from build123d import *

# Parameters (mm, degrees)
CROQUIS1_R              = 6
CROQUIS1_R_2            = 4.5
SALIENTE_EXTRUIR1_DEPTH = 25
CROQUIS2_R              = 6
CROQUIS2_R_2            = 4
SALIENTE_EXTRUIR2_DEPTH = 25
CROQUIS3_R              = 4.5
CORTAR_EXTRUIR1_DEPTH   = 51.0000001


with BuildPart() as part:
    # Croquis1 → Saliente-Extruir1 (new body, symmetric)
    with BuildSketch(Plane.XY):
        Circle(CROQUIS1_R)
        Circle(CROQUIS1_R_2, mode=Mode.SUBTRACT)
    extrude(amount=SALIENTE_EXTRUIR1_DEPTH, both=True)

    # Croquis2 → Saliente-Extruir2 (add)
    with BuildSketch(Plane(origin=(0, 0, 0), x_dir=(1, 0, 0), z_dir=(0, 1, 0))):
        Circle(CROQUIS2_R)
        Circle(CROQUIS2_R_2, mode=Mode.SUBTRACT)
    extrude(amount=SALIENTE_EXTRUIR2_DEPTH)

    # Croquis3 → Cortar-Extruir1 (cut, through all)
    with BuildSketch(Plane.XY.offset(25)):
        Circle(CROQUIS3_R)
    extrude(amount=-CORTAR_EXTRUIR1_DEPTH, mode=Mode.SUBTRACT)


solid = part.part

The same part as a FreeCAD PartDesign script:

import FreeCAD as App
import Part
import Sketcher

V = App.Vector
Q = App.Units.Quantity

doc = App.newDocument("Part")
params = doc.addObject("Spreadsheet::Sheet", "Params")
for row, (alias, value) in enumerate([
    ("sketch1_diameter", "12 mm"),
    ("sketch1_diameter2", "9 mm"),
    ("pad1_length", "50 mm"),
    ("sketch2_diameter", "12 mm"),
    ("sketch2_diameter2", "8 mm"),
    ("pad2_length", "25 mm"),
    ("sketch3_diameter", "9 mm"),
], start=1):
    params.set(f"A{row}", alias)
    params.set(f"B{row}", "=" + value)
    params.setAlias(f"B{row}", alias)

body = doc.addObject("PartDesign::Body", "Body")

sketch1 = doc.addObject("Sketcher::SketchObject", "Sketch")
body.addObject(sketch1)
sketch1.AttachmentSupport = (doc.XY_Plane, [""])
sketch1.MapMode = "FlatFace"
sketch1.addGeometry(Part.Circle(V(0, 0, 0), V(0, 0, 1), 6), False)
sketch1.addGeometry(Part.Circle(V(0, 0, 0), V(0, 0, 1), 4.5), False)
sketch1.addConstraint(Sketcher.Constraint("Coincident", 0, 3, -1, 1))
sketch1.addConstraint(Sketcher.Constraint("Coincident", 1, 3, -1, 1))
sketch1.addConstraint(Sketcher.Constraint("Diameter", 0, Q("12 mm")))
sketch1.addConstraint(Sketcher.Constraint("Diameter", 1, Q("9 mm")))
sketch1.setExpression("Constraints[2]", "Params.sketch1_diameter")
sketch1.setExpression("Constraints[3]", "Params.sketch1_diameter2")
pad1 = doc.addObject("PartDesign::Pad", "Pad")
body.addObject(pad1)
pad1.Profile = sketch1
pad1.setExpression("Length", "Params.pad1_length")
pad1.Midplane = True

sketch2 = doc.addObject("Sketcher::SketchObject", "Sketch001")
body.addObject(sketch2)
sketch2.AttachmentSupport = (doc.XZ_Plane, [""])
sketch2.MapMode = "FlatFace"
sketch2.addGeometry(Part.Circle(V(0, 0, 0), V(0, 0, 1), 6), False)
sketch2.addGeometry(Part.Circle(V(0, 0, 0), V(0, 0, 1), 4), False)
sketch2.addConstraint(Sketcher.Constraint("Coincident", 0, 3, -1, 1))
sketch2.addConstraint(Sketcher.Constraint("Coincident", 1, 3, -1, 1))
sketch2.addConstraint(Sketcher.Constraint("Diameter", 0, Q("12 mm")))
sketch2.addConstraint(Sketcher.Constraint("Diameter", 1, Q("8 mm")))
sketch2.setExpression("Constraints[2]", "Params.sketch2_diameter")
sketch2.setExpression("Constraints[3]", "Params.sketch2_diameter2")
pad2 = doc.addObject("PartDesign::Pad", "Pad001")
body.addObject(pad2)
pad2.Profile = sketch2
pad2.setExpression("Length", "Params.pad2_length")
pad2.Reversed = True

sketch3 = doc.addObject("Sketcher::SketchObject", "Sketch002")
body.addObject(sketch3)
sketch3.AttachmentSupport = (doc.XY_Plane, [""])
sketch3.MapMode = "FlatFace"
sketch3.AttachmentOffset = App.Placement(V(0, 0, 25), App.Rotation())
sketch3.addGeometry(Part.Circle(V(0, 0, 0), V(0, 0, 1), 4.5), False)
sketch3.addConstraint(Sketcher.Constraint("Coincident", 0, 3, -1, 1))
sketch3.addConstraint(Sketcher.Constraint("Diameter", 0, Q("9 mm")))
sketch3.setExpression("Constraints[1]", "Params.sketch3_diameter")
pocket1 = doc.addObject("PartDesign::Pocket", "Pocket")
body.addObject(pocket1)
pocket1.Profile = sketch3
pocket1.Type = "ThroughAll"

doc.recompute()
